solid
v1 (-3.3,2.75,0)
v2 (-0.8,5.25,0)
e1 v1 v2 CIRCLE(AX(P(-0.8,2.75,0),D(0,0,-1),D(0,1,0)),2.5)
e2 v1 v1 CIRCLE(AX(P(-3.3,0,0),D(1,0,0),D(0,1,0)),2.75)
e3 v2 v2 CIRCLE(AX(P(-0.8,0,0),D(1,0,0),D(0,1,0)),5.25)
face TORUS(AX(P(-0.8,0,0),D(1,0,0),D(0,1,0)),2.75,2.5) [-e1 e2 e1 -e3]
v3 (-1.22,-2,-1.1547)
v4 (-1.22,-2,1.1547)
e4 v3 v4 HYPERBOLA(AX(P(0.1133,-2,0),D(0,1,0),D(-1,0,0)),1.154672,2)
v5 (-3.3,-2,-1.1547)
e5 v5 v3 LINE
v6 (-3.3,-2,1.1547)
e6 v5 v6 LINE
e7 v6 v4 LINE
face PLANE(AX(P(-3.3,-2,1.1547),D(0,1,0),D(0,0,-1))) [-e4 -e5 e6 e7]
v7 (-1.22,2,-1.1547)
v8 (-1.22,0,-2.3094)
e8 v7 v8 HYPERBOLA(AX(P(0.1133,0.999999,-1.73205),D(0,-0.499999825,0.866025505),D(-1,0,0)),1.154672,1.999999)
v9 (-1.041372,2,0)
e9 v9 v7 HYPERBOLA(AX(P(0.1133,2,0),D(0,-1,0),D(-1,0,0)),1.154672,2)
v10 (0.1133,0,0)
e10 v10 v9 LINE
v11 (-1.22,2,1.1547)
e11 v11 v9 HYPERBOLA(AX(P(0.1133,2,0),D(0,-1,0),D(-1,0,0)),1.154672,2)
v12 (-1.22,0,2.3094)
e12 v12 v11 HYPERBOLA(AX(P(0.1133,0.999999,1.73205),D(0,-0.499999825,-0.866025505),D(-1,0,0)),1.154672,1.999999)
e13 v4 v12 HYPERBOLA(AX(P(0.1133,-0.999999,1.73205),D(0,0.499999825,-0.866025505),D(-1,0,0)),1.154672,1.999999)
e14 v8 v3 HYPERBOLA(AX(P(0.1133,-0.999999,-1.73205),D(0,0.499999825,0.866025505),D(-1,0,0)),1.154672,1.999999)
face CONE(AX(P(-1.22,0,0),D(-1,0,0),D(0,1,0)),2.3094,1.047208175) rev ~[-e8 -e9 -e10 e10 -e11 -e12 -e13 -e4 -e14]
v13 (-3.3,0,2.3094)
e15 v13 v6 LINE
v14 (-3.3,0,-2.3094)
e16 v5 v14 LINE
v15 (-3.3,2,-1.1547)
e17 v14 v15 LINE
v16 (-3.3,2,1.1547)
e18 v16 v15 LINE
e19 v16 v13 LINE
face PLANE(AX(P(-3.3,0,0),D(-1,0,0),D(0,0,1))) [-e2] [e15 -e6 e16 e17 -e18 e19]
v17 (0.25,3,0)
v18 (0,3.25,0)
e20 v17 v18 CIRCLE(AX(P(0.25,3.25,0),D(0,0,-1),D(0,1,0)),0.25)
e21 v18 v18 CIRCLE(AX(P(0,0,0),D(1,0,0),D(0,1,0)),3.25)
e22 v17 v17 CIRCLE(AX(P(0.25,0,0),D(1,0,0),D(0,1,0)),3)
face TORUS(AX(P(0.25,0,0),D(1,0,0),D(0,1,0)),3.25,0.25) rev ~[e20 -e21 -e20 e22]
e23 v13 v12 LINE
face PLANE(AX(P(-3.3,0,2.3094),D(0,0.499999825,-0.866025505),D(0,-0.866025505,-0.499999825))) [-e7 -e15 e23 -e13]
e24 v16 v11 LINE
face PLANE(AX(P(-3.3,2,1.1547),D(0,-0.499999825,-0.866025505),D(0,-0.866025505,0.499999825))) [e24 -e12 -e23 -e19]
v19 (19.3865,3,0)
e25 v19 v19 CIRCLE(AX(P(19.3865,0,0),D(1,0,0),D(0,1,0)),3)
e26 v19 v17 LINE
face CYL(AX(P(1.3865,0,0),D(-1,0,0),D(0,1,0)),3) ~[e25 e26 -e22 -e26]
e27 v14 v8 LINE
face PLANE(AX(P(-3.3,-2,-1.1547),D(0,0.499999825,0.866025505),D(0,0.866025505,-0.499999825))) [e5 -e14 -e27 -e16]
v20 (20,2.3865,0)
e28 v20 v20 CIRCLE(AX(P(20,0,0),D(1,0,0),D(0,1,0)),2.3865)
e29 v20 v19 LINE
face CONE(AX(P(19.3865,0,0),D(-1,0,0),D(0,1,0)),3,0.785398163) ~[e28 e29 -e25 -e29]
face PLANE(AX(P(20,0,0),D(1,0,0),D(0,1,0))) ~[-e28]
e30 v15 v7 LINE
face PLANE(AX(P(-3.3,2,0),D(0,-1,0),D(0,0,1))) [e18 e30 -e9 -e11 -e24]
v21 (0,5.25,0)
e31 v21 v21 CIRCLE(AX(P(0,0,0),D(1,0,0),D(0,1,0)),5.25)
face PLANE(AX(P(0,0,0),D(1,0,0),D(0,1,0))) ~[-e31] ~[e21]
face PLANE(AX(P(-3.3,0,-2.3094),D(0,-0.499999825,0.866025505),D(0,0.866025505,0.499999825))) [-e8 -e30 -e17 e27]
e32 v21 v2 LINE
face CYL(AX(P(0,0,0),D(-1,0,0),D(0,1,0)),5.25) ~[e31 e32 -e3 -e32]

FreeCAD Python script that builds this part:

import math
import FreeCAD as App
import Part
import Sketcher

V = App.Vector
Q = App.Units.Quantity


def edges_at(feature, points):
    """Names of the edges that pass closest to the given points."""
    edges = feature.Shape.Edges
    near = lambda p: min(range(len(edges)), key=lambda i: edges[i].distToShape(Part.Vertex(*p))[0])
    return sorted({f"Edge{near(p) + 1}" for p in points})


def add_polygon(sketch, points):
    """Adds a closed chain of lines whose ends are joined by coincident constraints."""
    first, n = sketch.GeometryCount, len(points)
    for a, b in zip(points, points[1:] + points[:1]):
        sketch.addGeometry(Part.LineSegment(App.Vector(*a, 0), App.Vector(*b, 0)), False)
    for i in range(n):
        sketch.addConstraint(Sketcher.Constraint("Coincident", first + i, 2, first + (i + 1) % n, 1))

doc = App.newDocument("Part")
body = doc.addObject("PartDesign::Body", "Body")

sketch1 = body.newObject("Sketcher::SketchObject", "Sketch")
sketch1.AttachmentSupport = (doc.getObject("XY_Plane"), [""])
sketch1.MapMode = "FlatFace"
add_polygon(sketch1, [(0.1133, 0), (20, 0), (20, 3), (0, 3), (0, 5.25), (-3.3, 5.25), (-3.3, 2.3094), (-1.22, 2.3094)])
sketch1.addConstraint([
    Sketcher.Constraint("Horizontal", 0),
    Sketcher.Constraint("Vertical", 1),
    Sketcher.Constraint("Horizontal", 2),
    Sketcher.Constraint("Vertical", 3),
    Sketcher.Constraint("Horizontal", 4),
    Sketcher.Constraint("Vertical", 5),
    Sketcher.Constraint("Horizontal", 6),
    Sketcher.Constraint("PointOnObject", 0, 2, -1),
    Sketcher.Constraint("PointOnObject", 2, 2, -2),
    Sketcher.Constraint("DistanceX", 2, 2, 2, 1, Q("20 mm")),
    Sketcher.Constraint("DistanceX", 4, 2, 4, 1, Q("3.3 mm")),
    Sketcher.Constraint("DistanceX", 6, 1, 6, 2, Q("2.08 mm")),
    Sketcher.Constraint("DistanceY", 1, 1, 1, 2, Q("3 mm")),
    Sketcher.Constraint("Angle", 7, Q("-60.0006 deg")),
    Sketcher.Constraint("DistanceY", 3, 1, 3, 2, Q("2.25 mm")),
    Sketcher.Constraint("DistanceX", 0, 1, 0, 2, Q("19.8867 mm")),
])
revolution = body.newObject("PartDesign::Revolution", "Revolution")
revolution.Profile = sketch1
revolution.ReferenceAxis = (sketch1, ["H_Axis"])
revolution.Angle = 360

sketch2 = body.newObject("Sketcher::SketchObject", "Sketch001")
sketch2.AttachmentSupport = (doc.getObject("YZ_Plane"), [""])
sketch2.MapMode = "FlatFace"
sketch2.AttachmentOffset = App.Placement(V(0, 0, -3.3), App.Rotation())
sketch2.addGeometry([
    Part.LineSegment(V(2, 1.1547, 0), V(0, 2.3094, 0)),
    Part.ArcOfCircle(Part.Circle(V(0, 0, 0), V(0, 0, 1), 2.3094), math.radians(29.999988), math.radians(90)),
    Part.ArcOfCircle(Part.Circle(V(0, 0, 0), V(0, 0, 1), 2.3094), math.radians(90), math.radians(150.000012)),
    Part.LineSegment(V(0, 2.3094, 0), V(-2, 1.1547, 0)),
    Part.ArcOfCircle(Part.Circle(V(0, 0, 0), V(0, 0, 1), 2.3094), math.radians(-29.999988), math.radians(29.999988)),
    Part.LineSegment(V(2, -1.1547, 0), V(2, 1.1547, 0)),
    Part.LineSegment(V(-2, 1.1547, 0), V(-2, -1.1547, 0)),
    Part.ArcOfCircle(Part.Circle(V(0, 0, 0), V(0, 0, 1), 2.3094), math.radians(150.000012), math.radians(209.999988)),
    Part.LineSegment(V(-2, -1.1547, 0), V(0, -2.3094, 0)),
    Part.ArcOfCircle(Part.Circle(V(0, 0, 0), V(0, 0, 1), 2.3094), math.radians(-150.000012), math.radians(-90)),
    Part.ArcOfCircle(Part.Circle(V(0, 0, 0), V(0, 0, 1), 2.3094), math.radians(-90), math.radians(-29.999988)),
    Part.LineSegment(V(0, -2.3094, 0), V(2, -1.1547, 0)),
], False)
sketch2.addConstraint([
    Sketcher.Constraint("Coincident", 0, 1, 1, 1),
    Sketcher.Constraint("Coincident", 1, 2, 0, 2),
    Sketcher.Constraint("Coincident", 2, 1, 3, 1),
    Sketcher.Constraint("Coincident", 3, 2, 2, 2),
    Sketcher.Constraint("Coincident", 4, 1, 5, 1),
    Sketcher.Constraint("Coincident", 5, 2, 4, 2),
    Sketcher.Constraint("Coincident", 6, 1, 7, 1),
    Sketcher.Constraint("Coincident", 7, 2, 6, 2),
    Sketcher.Constraint("Coincident", 8, 1, 9, 1),
    Sketcher.Constraint("Coincident", 9, 2, 8, 2),
    Sketcher.Constraint("Coincident", 10, 1, 11, 1),
    Sketcher.Constraint("Coincident", 11, 2, 10, 2),
    Sketcher.Constraint("Vertical", 5),
    Sketcher.Constraint("Vertical", 6),
    Sketcher.Constraint("Coincident", 1, 3, -1, 1),
    Sketcher.Constraint("Coincident", 2, 3, -1, 1),
    Sketcher.Constraint("Coincident", 4, 3, -1, 1),
    Sketcher.Constraint("Coincident", 7, 3, -1, 1),
    Sketcher.Constraint("Coincident", 9, 3, -1, 1),
    Sketcher.Constraint("Coincident", 10, 3, -1, 1),
    Sketcher.Constraint("Coincident", 2, 1, 1, 2),
    Sketcher.Constraint("Coincident", 5, 2, 0, 1),
    Sketcher.Constraint("Coincident", 6, 1, 3, 2),
    Sketcher.Constraint("Coincident", 8, 1, 7, 2),
    Sketcher.Constraint("Coincident", 10, 1, 9, 2),
    Sketcher.Constraint("PointOnObject", 1, 2, -2),
    Sketcher.Constraint("PointOnObject", 9, 2, -2),
    Sketcher.Constraint("Parallel", 0, 8),
    Sketcher.Constraint("Parallel", 3, 11),
    Sketcher.Constraint("Angle", 0, Q("150 deg")),
    Sketcher.Constraint("DistanceX", -1, 1, 0, 1, Q("2 mm")),
])
pad1 = body.newObject("PartDesign::Pad", "Pad")
pad1.Profile = sketch2
pad1.Length = 2.2586
doc.recompute()

fillet = body.newObject("PartDesign::Fillet", "Fillet")
fillet.Base = (pad1, edges_at(pad1, [(-3.3, -5.25, 0)]))
fillet.Radius = 2.5
doc.recompute()

chamfer = body.newObject("PartDesign::Chamfer", "Chamfer")
chamfer.Base = (fillet, edges_at(fillet, [(20, -3, 0)]))
chamfer.ChamferType = "Two distances"
chamfer.Size = 0.6135
chamfer.Size2 = 0.6135
doc.recompute()

fillet2 = body.newObject("PartDesign::Fillet", "Fillet001")
fillet2.Base = (chamfer, edges_at(chamfer, [(0, -3, 0)]))
fillet2.Radius = 0.25

doc.recompute()
